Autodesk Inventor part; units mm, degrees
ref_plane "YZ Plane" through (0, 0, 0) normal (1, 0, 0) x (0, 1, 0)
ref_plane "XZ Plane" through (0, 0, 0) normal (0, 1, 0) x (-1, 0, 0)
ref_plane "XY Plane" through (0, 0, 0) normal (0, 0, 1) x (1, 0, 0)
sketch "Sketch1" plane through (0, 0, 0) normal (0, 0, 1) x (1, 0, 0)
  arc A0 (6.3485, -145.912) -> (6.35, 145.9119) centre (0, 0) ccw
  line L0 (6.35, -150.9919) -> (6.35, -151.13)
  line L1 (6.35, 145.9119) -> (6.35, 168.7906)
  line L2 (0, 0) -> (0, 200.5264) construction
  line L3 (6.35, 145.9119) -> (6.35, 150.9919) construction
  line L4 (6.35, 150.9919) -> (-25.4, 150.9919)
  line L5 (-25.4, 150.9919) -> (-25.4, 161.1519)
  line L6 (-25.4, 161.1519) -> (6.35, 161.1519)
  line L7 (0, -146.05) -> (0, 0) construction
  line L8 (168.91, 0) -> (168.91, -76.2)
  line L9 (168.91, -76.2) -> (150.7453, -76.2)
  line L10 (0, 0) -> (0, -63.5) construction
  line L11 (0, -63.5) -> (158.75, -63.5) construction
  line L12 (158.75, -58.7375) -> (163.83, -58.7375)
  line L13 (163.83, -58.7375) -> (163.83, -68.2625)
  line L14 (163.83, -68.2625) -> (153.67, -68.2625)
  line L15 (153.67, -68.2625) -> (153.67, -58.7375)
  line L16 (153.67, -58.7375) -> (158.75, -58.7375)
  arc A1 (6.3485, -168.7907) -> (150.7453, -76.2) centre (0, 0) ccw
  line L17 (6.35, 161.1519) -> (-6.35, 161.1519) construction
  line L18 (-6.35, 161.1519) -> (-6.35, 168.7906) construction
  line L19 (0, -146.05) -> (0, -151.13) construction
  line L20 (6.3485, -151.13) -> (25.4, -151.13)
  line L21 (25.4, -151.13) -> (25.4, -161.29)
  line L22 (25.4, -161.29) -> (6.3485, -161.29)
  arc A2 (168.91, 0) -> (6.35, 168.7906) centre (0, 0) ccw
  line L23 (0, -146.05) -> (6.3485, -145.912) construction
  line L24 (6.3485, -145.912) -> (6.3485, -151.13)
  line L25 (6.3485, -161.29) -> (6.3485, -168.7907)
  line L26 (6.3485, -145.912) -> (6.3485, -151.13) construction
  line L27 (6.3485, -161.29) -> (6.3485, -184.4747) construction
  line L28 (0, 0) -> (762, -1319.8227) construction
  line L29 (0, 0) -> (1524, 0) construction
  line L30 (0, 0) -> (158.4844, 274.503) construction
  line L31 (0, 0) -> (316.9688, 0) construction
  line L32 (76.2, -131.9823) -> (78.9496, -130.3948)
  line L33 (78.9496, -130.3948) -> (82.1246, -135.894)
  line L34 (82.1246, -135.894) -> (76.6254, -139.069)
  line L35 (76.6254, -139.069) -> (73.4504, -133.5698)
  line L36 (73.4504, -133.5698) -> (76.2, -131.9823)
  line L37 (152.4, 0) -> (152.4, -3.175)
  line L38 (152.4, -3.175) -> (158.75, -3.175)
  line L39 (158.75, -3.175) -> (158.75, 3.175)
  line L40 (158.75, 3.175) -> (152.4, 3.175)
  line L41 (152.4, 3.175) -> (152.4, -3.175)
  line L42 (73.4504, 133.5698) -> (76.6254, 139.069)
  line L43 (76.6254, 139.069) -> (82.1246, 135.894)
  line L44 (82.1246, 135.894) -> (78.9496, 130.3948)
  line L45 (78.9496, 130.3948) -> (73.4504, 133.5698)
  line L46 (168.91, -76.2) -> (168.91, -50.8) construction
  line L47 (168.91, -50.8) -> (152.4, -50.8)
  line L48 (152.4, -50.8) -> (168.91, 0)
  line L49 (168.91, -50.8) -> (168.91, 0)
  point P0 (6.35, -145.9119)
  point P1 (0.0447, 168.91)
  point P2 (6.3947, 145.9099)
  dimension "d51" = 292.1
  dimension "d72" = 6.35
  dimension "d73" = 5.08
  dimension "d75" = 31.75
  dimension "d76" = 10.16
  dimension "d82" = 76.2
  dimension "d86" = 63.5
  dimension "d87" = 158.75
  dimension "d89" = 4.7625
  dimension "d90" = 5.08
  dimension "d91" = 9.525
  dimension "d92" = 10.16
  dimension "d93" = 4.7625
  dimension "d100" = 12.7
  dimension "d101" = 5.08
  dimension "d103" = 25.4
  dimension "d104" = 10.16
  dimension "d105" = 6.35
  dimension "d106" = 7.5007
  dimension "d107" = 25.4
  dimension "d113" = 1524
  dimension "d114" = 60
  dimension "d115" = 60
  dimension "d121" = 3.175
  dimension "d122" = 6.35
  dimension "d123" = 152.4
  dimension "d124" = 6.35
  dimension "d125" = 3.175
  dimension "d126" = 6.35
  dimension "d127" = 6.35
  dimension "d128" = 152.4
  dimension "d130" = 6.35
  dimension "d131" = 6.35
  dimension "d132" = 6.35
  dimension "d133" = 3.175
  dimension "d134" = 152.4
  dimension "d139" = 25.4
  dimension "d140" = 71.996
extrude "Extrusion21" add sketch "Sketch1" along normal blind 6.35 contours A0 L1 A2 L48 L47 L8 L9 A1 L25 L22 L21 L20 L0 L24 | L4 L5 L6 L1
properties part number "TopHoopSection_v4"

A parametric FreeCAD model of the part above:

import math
import FreeCAD as App
import Part
import Sketcher
from FreeCAD import Vector
Q = App.Units.Quantity

doc = App.newDocument("Part")
body = doc.addObject("PartDesign::Body", "Body")

# Sketch on XY plane
sketch1 = body.newObject("Sketcher::SketchObject", "Sketch")
sketch1.AttachmentSupport = (doc.getObject("XY_Plane"), [""])
sketch1.MapMode = "FlatFace"
sketch1.addGeometry(Part.ArcOfCircle(Part.Circle(Vector(0, 0, 0), Vector(0, 0, 1), 146.050043), math.radians(-87.508683), math.radians(87.508094)), False)
sketch1.addGeometry(Part.LineSegment(Vector(6.3485, -145.912, 0), Vector(6.34996, -150.9919, 0)), False)
sketch1.addGeometry(Part.LineSegment(Vector(6.35, -150.9919, 0), Vector(6.35, -151.13, 0)), False)
sketch1.addGeometry(Part.LineSegment(Vector(6.35, -151.13, 0), Vector(25.4, -151.13, 0)), False)
sketch1.addGeometry(Part.LineSegment(Vector(25.4, -151.13, 0), Vector(25.4, -161.29, 0)), False)
sketch1.addGeometry(Part.LineSegment(Vector(25.4, -161.29, 0), Vector(6.3485, -161.29, 0)), False)
sketch1.addGeometry(Part.LineSegment(Vector(6.3485, -161.29, 0), Vector(6.3485, -168.7907, 0)), False)
sketch1.addGeometry(Part.ArcOfCircle(Part.Circle(Vector(0, 0, 0), Vector(0, 0, 1), 168.91), math.radians(-87.846025), math.radians(-26.816068)), False)
sketch1.addGeometry(Part.LineSegment(Vector(150.7453, -76.2, 0), Vector(168.91, -76.2, 0)), False)
sketch1.addGeometry(Part.LineSegment(Vector(168.91, -76.2, 0), Vector(168.91, -50.8, 0)), False)
sketch1.addGeometry(Part.LineSegment(Vector(168.91, -50.8, 0), Vector(152.4, -50.8, 0)), False)
sketch1.addGeometry(Part.LineSegment(Vector(152.4, -50.8, 0), Vector(168.91, 0, 0)), False)
sketch1.addGeometry(Part.ArcOfCircle(Part.Circle(Vector(0, 0, 0), Vector(0, 0, 1), 168.91), math.radians(0), math.radians(87.845516)), False)
sketch1.addGeometry(Part.LineSegment(Vector(6.35, 168.7906, 0), Vector(6.35, 161.1519, 0)), False)
sketch1.addGeometry(Part.LineSegment(Vector(6.35, 161.1519, 0), Vector(-25.4, 161.1519, 0)), False)
sketch1.addGeometry(Part.LineSegment(Vector(-25.4, 161.1519, 0), Vector(-25.4, 150.9919, 0)), False)
sketch1.addGeometry(Part.LineSegment(Vector(-25.4, 150.9919, 0), Vector(6.35, 150.9919, 0)), False)
sketch1.addGeometry(Part.LineSegment(Vector(6.35, 150.9919, 0), Vector(6.35, 145.9119, 0)), False)
sketch1.addGeometry(Part.LineSegment(Vector(73.4504, -133.5698, 0), Vector(78.9496, -130.3948, 0)), False)
sketch1.addGeometry(Part.LineSegment(Vector(78.9496, -130.3948, 0), Vector(82.1246, -135.894, 0)), False)
sketch1.addGeometry(Part.LineSegment(Vector(82.1246, -135.894, 0), Vector(76.6254, -139.069, 0)), False)
sketch1.addGeometry(Part.LineSegment(Vector(76.6254, -139.069, 0), Vector(73.4504, -133.5698, 0)), False)
sketch1.addGeometry(Part.LineSegment(Vector(153.67, -58.7375, 0), Vector(163.83, -58.7375, 0)), False)
sketch1.addGeometry(Part.LineSegment(Vector(163.83, -58.7375, 0), Vector(163.83, -68.2625, 0)), False)
sketch1.addGeometry(Part.LineSegment(Vector(163.83, -68.2625, 0), Vector(153.67, -68.2625, 0)), False)
sketch1.addGeometry(Part.LineSegment(Vector(153.67, -68.2625, 0), Vector(153.67, -58.7375, 0)), False)
sketch1.addGeometry(Part.LineSegment(Vector(152.4, -3.175, 0), Vector(152.4, 3.175, 0)), False)
sketch1.addGeometry(Part.LineSegment(Vector(152.4, 3.175, 0), Vector(158.75, 3.175, 0)), False)
sketch1.addGeometry(Part.LineSegment(Vector(158.75, 3.175, 0), Vector(158.75, -3.175, 0)), False)
sketch1.addGeometry(Part.LineSegment(Vector(158.75, -3.175, 0), Vector(152.4, -3.175, 0)), False)
sketch1.addGeometry(Part.LineSegment(Vector(78.9496, 130.3948, 0), Vector(73.4504, 133.5698, 0)), False)
sketch1.addGeometry(Part.LineSegment(Vector(73.4504, 133.5698, 0), Vector(76.6254, 139.069, 0)), False)
sketch1.addGeometry(Part.LineSegment(Vector(76.6254, 139.069, 0), Vector(82.1246, 135.894, 0)), False)
sketch1.addGeometry(Part.LineSegment(Vector(82.1246, 135.894, 0), Vector(78.9496, 130.3948, 0)), False)
sketch1.addConstraint(Sketcher.Constraint("Coincident", 0, 1, 1, 1))
sketch1.addConstraint(Sketcher.Constraint("Coincident", 1, 2, 2, 1))
sketch1.addConstraint(Sketcher.Constraint("Coincident", 2, 2, 3, 1))
sketch1.addConstraint(Sketcher.Constraint("Coincident", 3, 2, 4, 1))
sketch1.addConstraint(Sketcher.Constraint("Coincident", 4, 2, 5, 1))
sketch1.addConstraint(Sketcher.Constraint("Coincident", 5, 2, 6, 1))
sketch1.addConstraint(Sketcher.Constraint("Coincident", 6, 2, 7, 1))
sketch1.addConstraint(Sketcher.Constraint("Coincident", 7, 2, 8, 1))
sketch1.addConstraint(Sketcher.Constraint("Coincident", 8, 2, 9, 1))
sketch1.addConstraint(Sketcher.Constraint("Coincident", 9, 2, 10, 1))
sketch1.addConstraint(Sketcher.Constraint("Coincident", 10, 2, 11, 1))
sketch1.addConstraint(Sketcher.Constraint("Coincident", 11, 2, 12, 1))
sketch1.addConstraint(Sketcher.Constraint("Coincident", 12, 2, 13, 1))
sketch1.addConstraint(Sketcher.Constraint("Coincident", 13, 2, 14, 1))
sketch1.addConstraint(Sketcher.Constraint("Coincident", 14, 2, 15, 1))
sketch1.addConstraint(Sketcher.Constraint("Coincident", 15, 2, 16, 1))
sketch1.addConstraint(Sketcher.Constraint("Coincident", 16, 2, 17, 1))
sketch1.addConstraint(Sketcher.Constraint("Coincident", 17, 2, 0, 2))
sketch1.addConstraint(Sketcher.Constraint("Coincident", 18, 2, 19, 1))
sketch1.addConstraint(Sketcher.Constraint("Coincident", 19, 2, 20, 1))
sketch1.addConstraint(Sketcher.Constraint("Coincident", 20, 2, 21, 1))
sketch1.addConstraint(Sketcher.Constraint("Coincident", 21, 2, 18, 1))
sketch1.addConstraint(Sketcher.Constraint("Coincident", 22, 2, 23, 1))
sketch1.addConstraint(Sketcher.Constraint("Coincident", 23, 2, 24, 1))
sketch1.addConstraint(Sketcher.Constraint("Coincident", 24, 2, 25, 1))
sketch1.addConstraint(Sketcher.Constraint("Coincident", 25, 2, 22, 1))
sketch1.addConstraint(Sketcher.Constraint("Coincident", 26, 2, 27, 1))
sketch1.addConstraint(Sketcher.Constraint("Coincident", 27, 2, 28, 1))
sketch1.addConstraint(Sketcher.Constraint("Coincident", 28, 2, 29, 1))
sketch1.addConstraint(Sketcher.Constraint("Coincident", 29, 2, 26, 1))
sketch1.addConstraint(Sketcher.Constraint("Coincident", 30, 2, 31, 1))
sketch1.addConstraint(Sketcher.Constraint("Coincident", 31, 2, 32, 1))
sketch1.addConstraint(Sketcher.Constraint("Coincident", 32, 2, 33, 1))
sketch1.addConstraint(Sketcher.Constraint("Coincident", 33, 2, 30, 1))
sketch1.addConstraint(Sketcher.Constraint("Vertical", 2))
sketch1.addConstraint(Sketcher.Constraint("Horizontal", 3))
sketch1.addConstraint(Sketcher.Constraint("Vertical", 4))
sketch1.addConstraint(Sketcher.Constraint("Horizontal", 5))
sketch1.addConstraint(Sketcher.Constraint("Vertical", 6))
sketch1.addConstraint(Sketcher.Constraint("Horizontal", 8))
sketch1.addConstraint(Sketcher.Constraint("Vertical", 9))
sketch1.addConstraint(Sketcher.Constraint("Horizontal", 10))
sketch1.addConstraint(Sketcher.Constraint("Vertical", 13))
sketch1.addConstraint(Sketcher.Constraint("Horizontal", 14))
sketch1.addConstraint(Sketcher.Constraint("Vertical", 15))
sketch1.addConstraint(Sketcher.Constraint("Horizontal", 16))
sketch1.addConstraint(Sketcher.Constraint("Vertical", 17))
sketch1.addConstraint(Sketcher.Constraint("Horizontal", 22))
sketch1.addConstraint(Sketcher.Constraint("Vertical", 23))
sketch1.addConstraint(Sketcher.Constraint("Horizontal", 24))
sketch1.addConstraint(Sketcher.Constraint("Vertical", 25))
sketch1.addConstraint(Sketcher.Constraint("Vertical", 26))
sketch1.addConstraint(Sketcher.Constraint("Horizontal", 27))
sketch1.addConstraint(Sketcher.Constraint("Vertical", 28))
sketch1.addConstraint(Sketcher.Constraint("Horizontal", 29))
sketch1.addConstraint(Sketcher.Constraint("Coincident", 0, 3, -1, 1))
sketch1.addConstraint(Sketcher.Constraint("Coincident", 7, 3, -1, 1))
sketch1.addConstraint(Sketcher.Constraint("Coincident", 12, 3, -1, 1))
sketch1.addConstraint(Sketcher.Constraint("Equal", 7, 12))
sketch1.addConstraint(Sketcher.Constraint("Symmetric", 1, 2, 16, 2, -1))
sketch1.addConstraint(Sketcher.Constraint("Symmetric", 21, 2, 30, 2, -1))
sketch1.addConstraint(Sketcher.Constraint("Symmetric", 20, 2, 31, 2, -1))
sketch1.addConstraint(Sketcher.Constraint("Symmetric", 19, 2, 32, 2, -1))
sketch1.addConstraint(Sketcher.Constraint("Symmetric", 18, 2, 33, 2, -1))
sketch1.addConstraint(Sketcher.Constraint("PointOnObject", 11, 2, -1))
sketch1.addConstraint(Sketcher.Constraint("Perpendicular", 18, 19))
sketch1.addConstraint(Sketcher.Constraint("Perpendicular", 19, 20))
sketch1.addConstraint(Sketcher.Constraint("Perpendicular", 20, 21))
sketch1.addConstraint(Sketcher.Constraint("Vertical", 0, 1, 5, 2))
sketch1.addConstraint(Sketcher.Constraint("Vertical", 9, 2, 11, 2))
sketch1.addConstraint(Sketcher.Constraint("Vertical", 2, 2, 12, 2))
sketch1.addConstraint(Sketcher.Constraint("Vertical", 10, 2, 26, 2))
sketch1.addConstraint(Sketcher.Constraint("Equal", 24, 4))
sketch1.addConstraint(Sketcher.Constraint("Equal", 4, 15))
sketch1.addConstraint(Sketcher.Constraint("Equal", 29, 26))
sketch1.addConstraint(Sketcher.Constraint("Equal", 18, 19))
sketch1.addConstraint(Sketcher.Constraint("DistanceY", 9, 1, 9, 2, Q("1 in")))
sketch1.addConstraint(Sketcher.Constraint("Radius", 0, Q("5.75 in")))
sketch1.addConstraint(Sketcher.Constraint("DistanceX", 22, 1, 22, 2, Q("0.4 in")))
sketch1.addConstraint(Sketcher.Constraint("DistanceY", 17, 2, 17, 1, Q("0.2 in")))
sketch1.addConstraint(Sketcher.Constraint("DistanceX", -1, 1, 3, 2, Q("1 in")))
sketch1.addConstraint(Sketcher.Constraint("DistanceY", 7, 2, -1, 1, Q("3 in")))
sketch1.addConstraint(Sketcher.Constraint("DistanceX", -1, 1, 10, 2, Q("6 in")))
sketch1.addConstraint(Sketcher.Constraint("DistanceX", 14, 2, -1, 1, Q("1 in")))
sketch1.addConstraint(Sketcher.Constraint("Angle", 19, Q("-59.9997 deg")))
sketch1.addConstraint(Sketcher.Constraint("Distance", 1, Q("0.2 in")))
sketch1.addConstraint(Sketcher.Constraint("DistanceX", 14, 2, 14, 1, Q("1.25 in")))
sketch1.addConstraint(Sketcher.Constraint("DistanceX", 27, 1, 27, 2, Q("0.25 in")))
sketch1.addConstraint(Sketcher.Constraint("DistanceX", 22, 2, 9, 2, Q("0.2 in")))
sketch1.addConstraint(Sketcher.Constraint("DistanceX", 27, 2, 11, 2, Q("0.4 in")))
sketch1.addConstraint(Sketcher.Constraint("Distance", 18, Q("0.25 in")))
sketch1.addConstraint(Sketcher.Constraint("DistanceY", 23, 2, 23, 1, Q("0.375 in")))
sketch1.addConstraint(Sketcher.Constraint("DistanceY", 6, 2, 6, 1, Q("0.2953 in")))
sketch1.addConstraint(Sketcher.Constraint("DistanceY", -1, 1, 26, 2, Q("0.125 in")))
sketch1.addConstraint(Sketcher.Constraint("DistanceY", 22, 2, -1, 1, Q("2.3125 in")))
sketch1.addConstraint(Sketcher.Constraint("DistanceY", 1, 2, 18, 2, Q("0.8109 in")))
sketch1.addConstraint(Sketcher.Constraint("DistanceX", -1, 1, 18, 2, Q("78.9496 mm")))
pad1 = body.newObject("PartDesign::Pad", "Pad")
pad1.Profile = sketch1
pad1.Length = Q("0.25 in")

doc.recompute()
